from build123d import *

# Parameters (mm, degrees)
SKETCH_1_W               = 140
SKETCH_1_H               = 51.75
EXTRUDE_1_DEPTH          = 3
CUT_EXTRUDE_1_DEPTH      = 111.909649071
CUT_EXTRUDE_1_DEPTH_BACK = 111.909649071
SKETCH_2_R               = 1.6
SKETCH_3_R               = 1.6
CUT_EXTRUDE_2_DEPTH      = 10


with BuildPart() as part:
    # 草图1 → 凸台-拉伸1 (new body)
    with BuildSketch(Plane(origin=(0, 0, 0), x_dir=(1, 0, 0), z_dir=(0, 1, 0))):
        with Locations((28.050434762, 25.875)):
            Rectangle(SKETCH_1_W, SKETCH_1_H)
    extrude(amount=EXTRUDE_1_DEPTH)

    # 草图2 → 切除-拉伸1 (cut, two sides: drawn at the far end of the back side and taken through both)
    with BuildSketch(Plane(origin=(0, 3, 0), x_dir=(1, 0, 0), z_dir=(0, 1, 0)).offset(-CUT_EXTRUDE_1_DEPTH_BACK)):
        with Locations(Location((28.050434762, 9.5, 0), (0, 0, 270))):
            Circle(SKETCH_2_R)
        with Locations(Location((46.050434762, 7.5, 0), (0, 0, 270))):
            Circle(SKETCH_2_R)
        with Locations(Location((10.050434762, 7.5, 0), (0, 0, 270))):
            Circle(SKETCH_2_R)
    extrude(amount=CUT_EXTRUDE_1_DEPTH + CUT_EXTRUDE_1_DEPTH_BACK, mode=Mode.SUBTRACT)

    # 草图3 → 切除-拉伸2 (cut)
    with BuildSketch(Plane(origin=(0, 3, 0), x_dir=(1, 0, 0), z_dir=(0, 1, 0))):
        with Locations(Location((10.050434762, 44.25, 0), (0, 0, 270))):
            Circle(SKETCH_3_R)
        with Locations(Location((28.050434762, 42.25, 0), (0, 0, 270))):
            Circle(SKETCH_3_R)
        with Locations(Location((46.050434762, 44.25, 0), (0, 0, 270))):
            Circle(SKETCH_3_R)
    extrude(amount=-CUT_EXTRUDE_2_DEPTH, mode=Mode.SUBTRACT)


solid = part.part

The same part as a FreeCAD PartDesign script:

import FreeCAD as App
import Part
import Sketcher
from FreeCAD import Vector
Q = App.Units.Quantity


def add_polygon(sketch, points):
    """Adds a closed chain of lines whose ends are joined by coincident constraints."""
    first, n = sketch.GeometryCount, len(points)
    for a, b in zip(points, points[1:] + points[:1]):
        sketch.addGeometry(Part.LineSegment(App.Vector(*a, 0), App.Vector(*b, 0)), False)
    for i in range(n):
        sketch.addConstraint(Sketcher.Constraint("Coincident", first + i, 2, first + (i + 1) % n, 1))

doc = App.newDocument("Part")
body = doc.addObject("PartDesign::Body", "Body")

sketch1 = body.newObject("Sketcher::SketchObject", "Sketch")
sketch1.AttachmentSupport = (doc.getObject("XZ_Plane"), [""])
sketch1.MapMode = "FlatFace"
add_polygon(sketch1, [(-42, -52), (-42, 0), (98, 0), (98, -52)])
sketch1.addConstraint([
    Sketcher.Constraint("Vertical", 0),
    Sketcher.Constraint("Horizontal", 1),
    Sketcher.Constraint("Vertical", 2),
    Sketcher.Constraint("Horizontal", 3),
    Sketcher.Constraint("PointOnObject", 0, 2, -1),
    Sketcher.Constraint("DistanceX", 1, 1, 1, 2, Q("140 mm")),
    Sketcher.Constraint("DistanceY", 0, 1, 0, 2, Q("51.75 mm")),
    Sketcher.Constraint("DistanceX", 0, 2, -1, 1, Q("41.949565 mm")),
])
pad1 = body.newObject("PartDesign::Pad", "Pad")
pad1.Profile = sketch1
pad1.Length = 3
pad1.Reversed = True

sketch2 = body.newObject("Sketcher::SketchObject", "Sketch001")
sketch2.AttachmentSupport = (doc.getObject("XZ_Plane"), [""])
sketch2.MapMode = "FlatFace"
sketch2.AttachmentOffset = App.Placement(Vector(0, 0, -3), App.Rotation())
sketch2.addGeometry([
    Part.Circle(Vector(28.1, -9.5, 0), Vector(0, 0, 1), 1.6),
    Part.Circle(Vector(46.1, -7.5, 0), Vector(0, 0, 1), 1.6),
    Part.Circle(Vector(10.1, -7.5, 0), Vector(0, 0, 1), 1.6),
], False)
sketch2.addConstraint([
    Sketcher.Constraint("Equal", 0, 1),
    Sketcher.Constraint("Equal", 1, 2),
    Sketcher.Constraint("Horizontal", 1, 3, 2, 3),
    Sketcher.Constraint("Diameter", 0, Q("3.2 mm")),
    Sketcher.Constraint("DistanceX", 0, 3, 1, 3, Q("18 mm")),
    Sketcher.Constraint("DistanceY", 0, 3, 1, 3, Q("2 mm")),
    Sketcher.Constraint("DistanceX", 2, 3, 0, 3, Q("18 mm")),
    Sketcher.Constraint("DistanceY", 0, 3, -1, 1, Q("9.5 mm")),
    Sketcher.Constraint("DistanceX", -1, 1, 0, 3, Q("28.050435 mm")),
])
pocket1 = body.newObject("PartDesign::Pocket", "Pocket")
pocket1.Profile = sketch2
pocket1.Type = "ThroughAll"
pocket1.Midplane = True

sketch3 = body.newObject("Sketcher::SketchObject", "Sketch002")
sketch3.AttachmentSupport = (doc.getObject("XZ_Plane"), [""])
sketch3.MapMode = "FlatFace"
sketch3.AttachmentOffset = App.Placement(Vector(0, 0, -3), App.Rotation())
sketch3.addGeometry([
    Part.Circle(Vector(10.1, -44.2, 0), Vector(0, 0, 1), 1.6),
    Part.Circle(Vector(28.1, -42.2, 0), Vector(0, 0, 1), 1.6),
    Part.Circle(Vector(46.1, -44.2, 0), Vector(0, 0, 1), 1.6),
], False)
sketch3.addConstraint([
    Sketcher.Constraint("Equal", 0, 1),
    Sketcher.Constraint("Equal", 1, 2),
    Sketcher.Constraint("Horizontal", 0, 3, 2, 3),
    Sketcher.Constraint("Diameter", 0, Q("3.2 mm")),
    Sketcher.Constraint("DistanceX", 0, 3, 1, 3, Q("18 mm")),
    Sketcher.Constraint("DistanceY", 0, 3, 1, 3, Q("2 mm")),
    Sketcher.Constraint("DistanceX", 1, 3, 2, 3, Q("18 mm")),
    Sketcher.Constraint("DistanceY", 0, 3, -1, 1, Q("44.25 mm")),
    Sketcher.Constraint("DistanceX", -1, 1, 0, 3, Q("10.050435 mm")),
])
pocket2 = body.newObject("PartDesign::Pocket", "Pocket001")
pocket2.Profile = sketch3
pocket2.Length = 10
pocket2.Reversed = True

doc.recompute()
